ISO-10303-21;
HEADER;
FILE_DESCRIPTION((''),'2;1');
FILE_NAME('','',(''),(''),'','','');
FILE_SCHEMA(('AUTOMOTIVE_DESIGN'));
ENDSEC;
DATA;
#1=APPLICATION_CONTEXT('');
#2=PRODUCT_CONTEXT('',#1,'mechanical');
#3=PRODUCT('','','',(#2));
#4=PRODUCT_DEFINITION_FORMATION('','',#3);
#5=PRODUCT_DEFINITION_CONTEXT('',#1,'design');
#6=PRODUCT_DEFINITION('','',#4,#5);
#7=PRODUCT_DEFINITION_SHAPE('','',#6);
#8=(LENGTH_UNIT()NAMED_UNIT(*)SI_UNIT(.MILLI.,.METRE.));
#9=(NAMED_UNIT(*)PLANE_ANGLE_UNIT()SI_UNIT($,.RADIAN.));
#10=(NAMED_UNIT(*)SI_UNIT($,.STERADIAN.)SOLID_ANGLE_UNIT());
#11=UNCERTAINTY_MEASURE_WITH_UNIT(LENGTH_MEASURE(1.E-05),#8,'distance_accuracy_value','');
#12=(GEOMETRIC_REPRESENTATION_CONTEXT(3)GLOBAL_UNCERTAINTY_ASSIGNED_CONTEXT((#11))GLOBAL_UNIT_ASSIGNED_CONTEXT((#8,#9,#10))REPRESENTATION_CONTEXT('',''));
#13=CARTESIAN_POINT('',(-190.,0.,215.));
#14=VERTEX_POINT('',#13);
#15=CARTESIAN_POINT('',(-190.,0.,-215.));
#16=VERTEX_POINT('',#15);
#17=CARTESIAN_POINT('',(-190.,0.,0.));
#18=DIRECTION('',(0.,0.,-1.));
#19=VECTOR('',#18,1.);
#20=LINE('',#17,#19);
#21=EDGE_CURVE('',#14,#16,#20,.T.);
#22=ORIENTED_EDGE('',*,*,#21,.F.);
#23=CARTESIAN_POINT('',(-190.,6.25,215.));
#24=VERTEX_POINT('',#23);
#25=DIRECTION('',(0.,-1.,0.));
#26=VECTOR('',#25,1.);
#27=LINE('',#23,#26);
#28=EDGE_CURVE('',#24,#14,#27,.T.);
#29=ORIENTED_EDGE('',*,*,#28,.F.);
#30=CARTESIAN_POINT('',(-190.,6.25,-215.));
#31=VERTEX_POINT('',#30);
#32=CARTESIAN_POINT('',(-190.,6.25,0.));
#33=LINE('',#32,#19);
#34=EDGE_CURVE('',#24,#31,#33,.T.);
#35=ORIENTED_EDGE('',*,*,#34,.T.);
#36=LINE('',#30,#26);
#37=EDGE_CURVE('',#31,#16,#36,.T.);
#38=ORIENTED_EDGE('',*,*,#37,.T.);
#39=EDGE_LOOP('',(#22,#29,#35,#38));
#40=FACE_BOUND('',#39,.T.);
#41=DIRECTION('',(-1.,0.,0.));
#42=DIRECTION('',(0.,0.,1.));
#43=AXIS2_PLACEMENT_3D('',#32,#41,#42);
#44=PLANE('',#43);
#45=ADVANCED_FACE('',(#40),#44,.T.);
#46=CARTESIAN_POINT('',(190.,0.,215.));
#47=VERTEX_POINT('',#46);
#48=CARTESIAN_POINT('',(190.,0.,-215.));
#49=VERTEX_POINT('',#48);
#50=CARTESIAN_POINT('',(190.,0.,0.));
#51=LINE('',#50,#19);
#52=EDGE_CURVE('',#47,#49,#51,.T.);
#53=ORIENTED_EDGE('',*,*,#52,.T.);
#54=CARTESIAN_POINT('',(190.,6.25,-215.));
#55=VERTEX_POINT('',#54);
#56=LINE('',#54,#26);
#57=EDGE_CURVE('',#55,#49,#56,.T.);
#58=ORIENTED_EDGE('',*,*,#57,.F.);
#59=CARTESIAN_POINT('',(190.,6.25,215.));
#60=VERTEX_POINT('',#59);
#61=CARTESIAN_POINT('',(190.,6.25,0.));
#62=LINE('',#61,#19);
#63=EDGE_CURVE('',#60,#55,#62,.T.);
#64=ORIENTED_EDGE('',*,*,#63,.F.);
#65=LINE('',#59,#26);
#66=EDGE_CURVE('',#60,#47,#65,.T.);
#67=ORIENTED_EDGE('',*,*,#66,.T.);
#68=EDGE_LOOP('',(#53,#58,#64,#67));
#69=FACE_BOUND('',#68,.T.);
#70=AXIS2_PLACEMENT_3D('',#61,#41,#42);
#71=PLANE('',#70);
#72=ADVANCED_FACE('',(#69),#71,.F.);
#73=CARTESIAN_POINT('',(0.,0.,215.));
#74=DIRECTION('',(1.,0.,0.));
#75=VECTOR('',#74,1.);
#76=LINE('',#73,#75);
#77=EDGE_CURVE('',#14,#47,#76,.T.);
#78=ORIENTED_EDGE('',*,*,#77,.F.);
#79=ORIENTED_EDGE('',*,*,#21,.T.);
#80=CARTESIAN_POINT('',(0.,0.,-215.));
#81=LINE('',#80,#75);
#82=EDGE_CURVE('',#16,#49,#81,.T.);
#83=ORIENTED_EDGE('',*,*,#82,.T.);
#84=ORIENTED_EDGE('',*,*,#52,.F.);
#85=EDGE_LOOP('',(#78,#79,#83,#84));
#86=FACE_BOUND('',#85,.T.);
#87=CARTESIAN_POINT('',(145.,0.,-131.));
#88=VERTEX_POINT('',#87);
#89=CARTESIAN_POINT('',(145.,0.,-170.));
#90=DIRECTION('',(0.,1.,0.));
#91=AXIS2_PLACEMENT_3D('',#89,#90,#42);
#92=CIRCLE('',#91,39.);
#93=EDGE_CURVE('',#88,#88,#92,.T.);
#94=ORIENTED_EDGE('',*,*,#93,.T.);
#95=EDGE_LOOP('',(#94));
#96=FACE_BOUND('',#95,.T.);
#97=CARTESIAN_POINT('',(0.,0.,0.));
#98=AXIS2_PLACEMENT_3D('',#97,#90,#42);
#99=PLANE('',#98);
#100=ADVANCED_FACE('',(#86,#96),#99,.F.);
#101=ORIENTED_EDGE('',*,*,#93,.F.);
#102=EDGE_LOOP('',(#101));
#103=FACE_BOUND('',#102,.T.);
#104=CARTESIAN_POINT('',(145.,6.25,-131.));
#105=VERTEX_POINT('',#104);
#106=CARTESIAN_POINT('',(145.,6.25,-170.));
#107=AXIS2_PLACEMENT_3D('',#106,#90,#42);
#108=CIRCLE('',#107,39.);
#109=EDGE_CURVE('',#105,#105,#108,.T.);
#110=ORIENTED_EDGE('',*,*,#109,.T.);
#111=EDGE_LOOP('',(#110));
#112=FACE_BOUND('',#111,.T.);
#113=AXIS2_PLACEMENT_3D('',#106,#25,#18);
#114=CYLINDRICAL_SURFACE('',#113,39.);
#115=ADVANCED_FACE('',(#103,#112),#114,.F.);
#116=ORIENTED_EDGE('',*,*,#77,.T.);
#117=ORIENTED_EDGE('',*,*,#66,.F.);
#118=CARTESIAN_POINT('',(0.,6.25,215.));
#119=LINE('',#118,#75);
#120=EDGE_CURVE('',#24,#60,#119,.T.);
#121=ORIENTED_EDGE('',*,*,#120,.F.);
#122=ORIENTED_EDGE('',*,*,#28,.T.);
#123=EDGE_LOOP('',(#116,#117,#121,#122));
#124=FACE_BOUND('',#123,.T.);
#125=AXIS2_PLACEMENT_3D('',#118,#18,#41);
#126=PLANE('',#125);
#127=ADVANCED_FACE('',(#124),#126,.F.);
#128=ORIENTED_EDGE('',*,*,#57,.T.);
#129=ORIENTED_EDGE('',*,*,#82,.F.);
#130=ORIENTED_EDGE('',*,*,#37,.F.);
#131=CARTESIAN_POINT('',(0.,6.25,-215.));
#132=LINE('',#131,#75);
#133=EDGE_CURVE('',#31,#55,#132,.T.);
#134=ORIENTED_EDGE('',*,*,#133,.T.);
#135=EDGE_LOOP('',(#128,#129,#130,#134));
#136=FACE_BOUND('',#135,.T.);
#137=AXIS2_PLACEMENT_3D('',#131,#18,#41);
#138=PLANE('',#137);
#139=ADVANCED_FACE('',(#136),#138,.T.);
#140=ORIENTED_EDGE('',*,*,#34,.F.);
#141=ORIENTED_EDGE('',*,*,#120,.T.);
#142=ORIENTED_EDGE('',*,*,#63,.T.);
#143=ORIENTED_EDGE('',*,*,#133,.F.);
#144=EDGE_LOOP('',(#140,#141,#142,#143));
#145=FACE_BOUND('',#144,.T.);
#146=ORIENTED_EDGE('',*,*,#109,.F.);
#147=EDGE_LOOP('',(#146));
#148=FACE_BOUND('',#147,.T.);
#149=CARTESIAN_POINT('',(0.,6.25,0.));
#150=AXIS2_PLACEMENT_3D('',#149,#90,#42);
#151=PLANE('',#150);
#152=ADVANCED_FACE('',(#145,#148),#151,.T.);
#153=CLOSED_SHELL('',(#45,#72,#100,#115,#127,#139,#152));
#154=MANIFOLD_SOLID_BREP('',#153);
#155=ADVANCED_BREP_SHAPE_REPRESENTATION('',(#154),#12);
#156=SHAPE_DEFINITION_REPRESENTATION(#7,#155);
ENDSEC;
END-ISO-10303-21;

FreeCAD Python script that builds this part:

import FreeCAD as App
import Part
import Sketcher
Q = App.Units.Quantity


def add_polygon(sketch, points):
    """Adds a closed chain of lines whose ends are joined by coincident constraints."""
    first, n = sketch.GeometryCount, len(points)
    for a, b in zip(points, points[1:] + points[:1]):
        sketch.addGeometry(Part.LineSegment(App.Vector(*a, 0), App.Vector(*b, 0)), False)
    for i in range(n):
        sketch.addConstraint(Sketcher.Constraint("Coincident", first + i, 2, first + (i + 1) % n, 1))

doc = App.newDocument("Part")
body = doc.addObject("PartDesign::Body", "Body")

# Sketch on XZ plane
sketch1 = body.newObject("Sketcher::SketchObject", "Sketch")
sketch1.AttachmentSupport = (doc.getObject("XZ_Plane"), [""])
sketch1.MapMode = "FlatFace"
add_polygon(sketch1, [(-190, -215), (-190, 215), (190, 215), (190, -215)])  # lines 0-3
sketch1.addGeometry(Part.Circle(App.Vector(145, -170, 0), App.Vector(0, 0, 1), 39), False)  # 4
sketch1.addConstraint([
    Sketcher.Constraint("Vertical", 0),
    Sketcher.Constraint("Horizontal", 1),
    Sketcher.Constraint("Vertical", 2),
    Sketcher.Constraint("Horizontal", 3),
    Sketcher.Constraint("Symmetric", 0, 2, 2, 2, -1, 1),
    Sketcher.Constraint("Diameter", 4, Q("78 mm")),
    Sketcher.Constraint("DistanceX", 1, 1, 1, 2, Q("380 mm")),
    Sketcher.Constraint("DistanceY", 0, 1, 0, 2, Q("430 mm")),
    Sketcher.Constraint("DistanceX", -1, 1, 4, 3, Q("145 mm")),
    Sketcher.Constraint("DistanceY", 4, 3, -1, 1, Q("170 mm")),
])
pad1 = body.newObject("PartDesign::Pad", "Pad")
pad1.Profile = sketch1
pad1.Length = 6.25
pad1.Reversed = True

doc.recompute()
